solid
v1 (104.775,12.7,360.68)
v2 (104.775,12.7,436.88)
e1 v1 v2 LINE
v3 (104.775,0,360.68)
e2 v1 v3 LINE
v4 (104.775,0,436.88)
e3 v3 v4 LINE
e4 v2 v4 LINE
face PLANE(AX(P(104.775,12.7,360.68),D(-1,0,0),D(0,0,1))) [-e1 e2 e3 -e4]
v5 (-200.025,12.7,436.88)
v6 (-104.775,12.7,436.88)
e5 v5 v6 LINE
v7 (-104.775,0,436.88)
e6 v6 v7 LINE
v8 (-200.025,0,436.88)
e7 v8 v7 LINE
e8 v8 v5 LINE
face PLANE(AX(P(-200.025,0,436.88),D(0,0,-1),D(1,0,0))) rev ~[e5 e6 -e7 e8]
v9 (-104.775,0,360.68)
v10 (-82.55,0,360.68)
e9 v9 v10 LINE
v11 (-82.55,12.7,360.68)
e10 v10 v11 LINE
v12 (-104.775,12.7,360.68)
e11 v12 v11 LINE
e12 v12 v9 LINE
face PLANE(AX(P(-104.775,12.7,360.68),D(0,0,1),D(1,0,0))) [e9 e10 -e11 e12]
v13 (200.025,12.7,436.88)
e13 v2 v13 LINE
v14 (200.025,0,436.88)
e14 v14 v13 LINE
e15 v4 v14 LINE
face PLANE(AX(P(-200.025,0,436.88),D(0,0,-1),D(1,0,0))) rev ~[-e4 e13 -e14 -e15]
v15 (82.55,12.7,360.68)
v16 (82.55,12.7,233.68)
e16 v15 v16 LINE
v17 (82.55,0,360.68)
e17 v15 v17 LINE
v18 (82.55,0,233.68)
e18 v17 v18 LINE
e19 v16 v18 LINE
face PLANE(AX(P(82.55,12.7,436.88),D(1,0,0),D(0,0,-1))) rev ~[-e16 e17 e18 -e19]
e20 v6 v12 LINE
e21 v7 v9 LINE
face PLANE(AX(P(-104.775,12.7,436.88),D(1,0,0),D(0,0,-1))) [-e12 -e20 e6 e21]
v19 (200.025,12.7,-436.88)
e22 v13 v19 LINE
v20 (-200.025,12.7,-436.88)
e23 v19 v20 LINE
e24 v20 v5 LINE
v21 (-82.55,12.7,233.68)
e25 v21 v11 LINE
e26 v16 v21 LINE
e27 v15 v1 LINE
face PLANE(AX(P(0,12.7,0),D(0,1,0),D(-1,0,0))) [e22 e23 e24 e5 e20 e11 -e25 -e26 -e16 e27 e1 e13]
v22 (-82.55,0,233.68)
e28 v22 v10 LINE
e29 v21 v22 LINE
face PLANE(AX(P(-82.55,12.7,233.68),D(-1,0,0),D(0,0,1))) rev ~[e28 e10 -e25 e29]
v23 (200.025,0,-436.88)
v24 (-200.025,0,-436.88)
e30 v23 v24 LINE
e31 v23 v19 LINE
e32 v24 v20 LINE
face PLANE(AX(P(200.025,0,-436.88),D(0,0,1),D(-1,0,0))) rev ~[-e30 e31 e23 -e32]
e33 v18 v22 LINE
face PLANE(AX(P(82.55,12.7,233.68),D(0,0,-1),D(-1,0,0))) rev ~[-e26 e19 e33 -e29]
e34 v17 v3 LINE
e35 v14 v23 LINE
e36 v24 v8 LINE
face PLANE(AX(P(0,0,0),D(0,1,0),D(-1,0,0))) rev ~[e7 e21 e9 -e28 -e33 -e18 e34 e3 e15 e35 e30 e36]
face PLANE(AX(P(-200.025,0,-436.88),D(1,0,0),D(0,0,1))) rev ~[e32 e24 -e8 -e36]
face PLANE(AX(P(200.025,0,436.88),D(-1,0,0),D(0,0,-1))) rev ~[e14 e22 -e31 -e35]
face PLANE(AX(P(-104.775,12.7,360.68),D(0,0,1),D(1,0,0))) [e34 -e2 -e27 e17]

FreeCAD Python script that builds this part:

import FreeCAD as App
import Part
import Sketcher
from FreeCAD import Vector
Q = App.Units.Quantity


def add_polygon(sketch, points):
    """Adds a closed chain of lines whose ends are joined by coincident constraints."""
    first, n = sketch.GeometryCount, len(points)
    for a, b in zip(points, points[1:] + points[:1]):
        sketch.addGeometry(Part.LineSegment(App.Vector(*a, 0), App.Vector(*b, 0)), False)
    for i in range(n):
        sketch.addConstraint(Sketcher.Constraint("Coincident", first + i, 2, first + (i + 1) % n, 1))

doc = App.newDocument("Part")
body = doc.addObject("PartDesign::Body", "Body")

sketch1 = body.newObject("Sketcher::SketchObject", "Sketch")
sketch1.AttachmentSupport = (doc.getObject("XZ_Plane"), [""])
sketch1.MapMode = "FlatFace"
add_polygon(sketch1, [(-200.025, -436.88), (-200.025, 436.88), (200.025, 436.88), (200.025, -436.88)])
sketch1.addConstraint([
    Sketcher.Constraint("Vertical", 0),
    Sketcher.Constraint("Horizontal", 1),
    Sketcher.Constraint("Vertical", 2),
    Sketcher.Constraint("Horizontal", 3),
    Sketcher.Constraint("Symmetric", 0, 2, 2, 2, -1, 1),
    Sketcher.Constraint("DistanceY", 0, 1, 0, 2, Q("34.4 in")),
    Sketcher.Constraint("DistanceX", 1, 1, 1, 2, Q("15.75 in")),
])
pad1 = body.newObject("PartDesign::Pad", "Pad")
pad1.Profile = sketch1
pad1.Length = Q("0.5 in")
pad1.Reversed = True

sketch2 = body.newObject("Sketcher::SketchObject", "Sketch001")
sketch2.AttachmentSupport = (doc.getObject("XZ_Plane"), [""])
sketch2.MapMode = "FlatFace"
sketch2.AttachmentOffset = App.Placement(Vector(0, 0, -0.5 * 25.4), App.Rotation())
add_polygon(sketch2, [(-82.55, 233.68), (-82.55, 436.88), (82.55, 436.88), (82.55, 233.68)])
sketch2.addConstraint([
    Sketcher.Constraint("Vertical", 0),
    Sketcher.Constraint("Horizontal", 1),
    Sketcher.Constraint("Vertical", 2),
    Sketcher.Constraint("Horizontal", 3),
    Sketcher.Constraint("DistanceY", 0, 1, 0, 2, Q("8 in")),
    Sketcher.Constraint("DistanceX", 1, 1, 1, 2, Q("6.5 in")),
    Sketcher.Constraint("DistanceY", -1, 1, 0, 2, Q("17.2 in")),
    Sketcher.Constraint("DistanceX", 0, 2, -1, 1, Q("3.25 in")),
])
pocket1 = body.newObject("PartDesign::Pocket", "Pocket")
pocket1.Profile = sketch2
pocket1.Type = "ThroughAll"
pocket1.Reversed = True

sketch3 = body.newObject("Sketcher::SketchObject", "Sketch002")
sketch3.AttachmentSupport = (doc.getObject("XZ_Plane"), [""])
sketch3.MapMode = "FlatFace"
sketch3.AttachmentOffset = App.Placement(Vector(0, 0, -0.5 * 25.4), App.Rotation())
add_polygon(sketch3, [(104.775, 360.68), (-104.775, 360.68), (-104.775, 436.88), (104.775, 436.88)])
sketch3.addConstraint([
    Sketcher.Constraint("Horizontal", 0),
    Sketcher.Constraint("Vertical", 1),
    Sketcher.Constraint("Horizontal", 2),
    Sketcher.Constraint("Vertical", 3),
    Sketcher.Constraint("DistanceY", 1, 1, 1, 2, Q("3 in")),
    Sketcher.Constraint("DistanceX", 0, 2, 0, 1, Q("8.25 in")),
    Sketcher.Constraint("DistanceY", -1, 1, 0, 2, Q("14.2 in")),
    Sketcher.Constraint("DistanceX", 0, 2, -1, 1, Q("4.125 in")),
])
pocket2 = body.newObject("PartDesign::Pocket", "Pocket001")
pocket2.Profile = sketch3
pocket2.Type = "ThroughAll"
pocket2.Reversed = True

doc.recompute()
